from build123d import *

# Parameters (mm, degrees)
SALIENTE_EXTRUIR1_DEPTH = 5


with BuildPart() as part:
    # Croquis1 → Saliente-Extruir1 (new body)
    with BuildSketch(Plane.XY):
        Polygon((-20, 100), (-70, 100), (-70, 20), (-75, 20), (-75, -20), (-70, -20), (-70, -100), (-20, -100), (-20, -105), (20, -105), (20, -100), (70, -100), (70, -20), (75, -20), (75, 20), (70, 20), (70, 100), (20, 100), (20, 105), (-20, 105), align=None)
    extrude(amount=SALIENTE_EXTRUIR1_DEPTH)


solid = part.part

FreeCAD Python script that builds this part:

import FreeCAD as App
import Part
import Sketcher
from FreeCAD import Vector


def add_polygon(sketch, points):
    """Adds a closed chain of lines whose ends are joined by coincident constraints."""
    first, n = sketch.GeometryCount, len(points)
    for a, b in zip(points, points[1:] + points[:1]):
        sketch.addGeometry(Part.LineSegment(App.Vector(*a, 0), App.Vector(*b, 0)), False)
    for i in range(n):
        sketch.addConstraint(Sketcher.Constraint("Coincident", first + i, 2, first + (i + 1) % n, 1))

doc = App.newDocument("Part")
body = doc.addObject("PartDesign::Body", "Body")

# Sketch on XY plane
sketch1 = body.newObject("Sketcher::SketchObject", "Sketch")
sketch1.AttachmentSupport = (doc.getObject("XY_Plane"), [""])
sketch1.MapMode = "FlatFace"
add_polygon(sketch1, [(-20, 100), (-70, 100), (-70, 20), (-75, 20), (-75, -20), (-70, -20), (-70, -100), (-20, -100), (-20, -105), (20, -105), (20, -100), (70, -100), (70, -20), (75, -20), (75, 20), (70, 20), (70, 100), (20, 100), (20, 105), (-20, 105)])  # lines 0-19
sketch1.addConstraint([
    Sketcher.Constraint("Horizontal", 0),
    Sketcher.Constraint("Vertical", 1),
    Sketcher.Constraint("Horizontal", 2),
    Sketcher.Constraint("Vertical", 3),
    Sketcher.Constraint("Horizontal", 4),
    Sketcher.Constraint("Vertical", 5),
    Sketcher.Constraint("Horizontal", 6),
    Sketcher.Constraint("Vertical", 7),
    Sketcher.Constraint("Horizontal", 8),
    Sketcher.Constraint("Vertical", 9),
    Sketcher.Constraint("Horizontal", 10),
    Sketcher.Constraint("Vertical", 11),
    Sketcher.Constraint("Horizontal", 12),
    Sketcher.Constraint("Vertical", 13),
    Sketcher.Constraint("Horizontal", 14),
    Sketcher.Constraint("Vertical", 15),
    Sketcher.Constraint("Horizontal", 16),
    Sketcher.Constraint("Vertical", 17),
    Sketcher.Constraint("Horizontal", 18),
    Sketcher.Constraint("Vertical", 19),
    Sketcher.Constraint("Symmetric", 0, 2, 10, 2, -1, 1),
    Sketcher.Constraint("Symmetric", 2, 2, 12, 2, -1, 1),
    Sketcher.Constraint("Symmetric", 4, 2, 14, 2, -1, 1),
    Sketcher.Constraint("Symmetric", 6, 2, 16, 2, -1, 1),
    Sketcher.Constraint("Symmetric", 8, 2, 18, 2, -1, 1),
    Sketcher.Constraint("Symmetric", 6, 2, 9, 2, -2),
    Sketcher.Constraint("Symmetric", 4, 2, 11, 2, -2),
    Sketcher.Constraint("Equal", 18, 3),
    Sketcher.Constraint("Equal", 14, 7),
    Sketcher.Constraint("DistanceX", 0, 2, 0, 1, 50.0),
    Sketcher.Constraint("DistanceX", 2, 2, 2, 1, 5.0),
    Sketcher.Constraint("DistanceX", 8, 1, 8, 2, 40.0),
    Sketcher.Constraint("DistanceY", 1, 2, 1, 1, 80.0),
])
pad1 = body.newObject("PartDesign::Pad", "Pad")
pad1.Profile = sketch1
pad1.Length = 5

doc.recompute()
